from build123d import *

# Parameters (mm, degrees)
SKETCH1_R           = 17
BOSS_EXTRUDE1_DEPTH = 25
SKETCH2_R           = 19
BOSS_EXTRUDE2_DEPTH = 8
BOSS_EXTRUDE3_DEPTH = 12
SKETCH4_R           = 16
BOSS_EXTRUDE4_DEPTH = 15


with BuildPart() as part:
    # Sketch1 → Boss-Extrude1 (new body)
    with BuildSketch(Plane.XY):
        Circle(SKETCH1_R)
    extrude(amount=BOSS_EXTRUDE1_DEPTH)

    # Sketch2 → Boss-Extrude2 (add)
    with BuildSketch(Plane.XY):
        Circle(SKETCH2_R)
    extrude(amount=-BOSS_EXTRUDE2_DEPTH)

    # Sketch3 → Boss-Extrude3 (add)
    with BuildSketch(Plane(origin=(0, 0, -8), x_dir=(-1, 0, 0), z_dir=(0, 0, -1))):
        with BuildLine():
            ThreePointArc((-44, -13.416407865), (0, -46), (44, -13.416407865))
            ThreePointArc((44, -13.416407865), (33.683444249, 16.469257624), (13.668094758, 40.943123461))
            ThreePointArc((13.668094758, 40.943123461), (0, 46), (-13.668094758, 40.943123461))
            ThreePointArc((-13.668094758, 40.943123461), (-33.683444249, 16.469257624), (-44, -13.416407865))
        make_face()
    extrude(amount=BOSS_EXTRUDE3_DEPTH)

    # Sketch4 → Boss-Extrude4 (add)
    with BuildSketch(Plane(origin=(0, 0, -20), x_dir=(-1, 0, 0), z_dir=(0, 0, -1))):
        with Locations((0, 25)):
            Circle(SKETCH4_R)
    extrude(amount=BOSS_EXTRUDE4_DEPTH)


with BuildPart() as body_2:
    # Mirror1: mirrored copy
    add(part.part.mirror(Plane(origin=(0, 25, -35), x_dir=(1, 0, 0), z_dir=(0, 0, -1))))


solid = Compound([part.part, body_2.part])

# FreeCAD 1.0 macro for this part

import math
import FreeCAD as App
import Part
import Sketcher
Q = App.Units.Quantity

doc = App.newDocument("Part")
params = doc.addObject("Spreadsheet::Sheet", "Params")
for row, (alias, value) in enumerate([
    ("sketch1_diameter", "34 mm"),
    ("pad1_length", "25 mm"),
    ("sketch2_diameter", "38 mm"),
    ("pad2_length", "8 mm"),
    ("sketch3_radius", "46 mm"),
    ("sketch3_radius2", "90 mm"),
    ("sketch3_radius3", "21 mm"),
    ("pad3_length", "12 mm"),
    ("sketch4_diameter", "32 mm"),
    ("pad4_length", "15 mm"),
], start=1):
    params.set(f"A{row}", alias)
    params.set(f"B{row}", "=" + value)
    params.setAlias(f"B{row}", alias)

body = doc.addObject("PartDesign::Body", "Body")

sketch1 = body.newObject("Sketcher::SketchObject", "Sketch")
sketch1.AttachmentSupport = (doc.getObject("XY_Plane"), [""])
sketch1.MapMode = "FlatFace"
sketch1.addGeometry(Part.Circle(App.Vector(0, 0, 0), App.Vector(0, 0, 1), 17), False)
sketch1.addConstraint(Sketcher.Constraint("Coincident", 0, 3, -1, 1))
sketch1.addConstraint(Sketcher.Constraint("Diameter", 0, Q("34 mm")))
sketch1.setExpression("Constraints[1]", "Params.sketch1_diameter")
pad1 = body.newObject("PartDesign::Pad", "Pad")
pad1.Profile = sketch1
pad1.setExpression("Length", "Params.pad1_length")

sketch2 = body.newObject("Sketcher::SketchObject", "Sketch001")
sketch2.AttachmentSupport = (doc.getObject("XY_Plane"), [""])
sketch2.MapMode = "FlatFace"
sketch2.addGeometry(Part.Circle(App.Vector(0, 0, 0), App.Vector(0, 0, 1), 19), False)
sketch2.addConstraint(Sketcher.Constraint("Coincident", 0, 3, -1, 1))
sketch2.addConstraint(Sketcher.Constraint("Diameter", 0, Q("38 mm")))
sketch2.setExpression("Constraints[1]", "Params.sketch2_diameter")
pad2 = body.newObject("PartDesign::Pad", "Pad001")
pad2.Profile = sketch2
pad2.setExpression("Length", "Params.pad2_length")
pad2.Reversed = True

sketch3 = body.newObject("Sketcher::SketchObject", "Sketch002")
sketch3.AttachmentSupport = (doc.getObject("XY_Plane"), [""])
sketch3.MapMode = "FlatFace"
sketch3.AttachmentOffset = App.Placement(App.Vector(0, 0, -8), App.Rotation())
sketch3.addGeometry(Part.ArcOfCircle(Part.Circle(App.Vector(0, 0, 0), App.Vector(0, 0, 1), 46), math.radians(-163), math.radians(-17)), False)
sketch3.addGeometry(Part.ArcOfCircle(Part.Circle(App.Vector(45, -27, 0), App.Vector(0, 0, 1), 90), math.radians(131), math.radians(171)), False)
sketch3.addGeometry(Part.ArcOfCircle(Part.Circle(App.Vector(0, 25, 0), App.Vector(0, 0, 1), 21), math.radians(49), math.radians(131)), False)
sketch3.addGeometry(Part.ArcOfCircle(Part.Circle(App.Vector(-45, -27, 0), App.Vector(0, 0, 1), 90), math.radians(9), math.radians(49)), False)
sketch3.addConstraint(Sketcher.Constraint("Coincident", 0, 1, 1, 2))
sketch3.addConstraint(Sketcher.Constraint("Tangent", 1, 1, 2, 2))
sketch3.addConstraint(Sketcher.Constraint("Tangent", 2, 1, 3, 2))
sketch3.addConstraint(Sketcher.Constraint("Coincident", 3, 1, 0, 2))
sketch3.addConstraint(Sketcher.Constraint("Coincident", 0, 3, -1, 1))
sketch3.addConstraint(Sketcher.Constraint("Equal", 1, 3))
sketch3.addConstraint(Sketcher.Constraint("Symmetric", 1, 3, 3, 3, -2))
sketch3.addConstraint(Sketcher.Constraint("Radius", 0, Q("46 mm")))
sketch3.addConstraint(Sketcher.Constraint("Radius", 1, Q("90 mm")))
sketch3.addConstraint(Sketcher.Constraint("Radius", 2, Q("21 mm")))
sketch3.addConstraint(Sketcher.Constraint("DistanceY", -1, 1, 2, 3, Q("25 mm")))
sketch3.addConstraint(Sketcher.Constraint("DistanceX", 0, 1, -1, 1, Q("44 mm")))
sketch3.setExpression("Constraints[7]", "Params.sketch3_radius")
sketch3.setExpression("Constraints[8]", "Params.sketch3_radius2")
sketch3.setExpression("Constraints[9]", "Params.sketch3_radius3")
pad3 = body.newObject("PartDesign::Pad", "Pad002")
pad3.Profile = sketch3
pad3.setExpression("Length", "Params.pad3_length")
pad3.Reversed = True

sketch4 = body.newObject("Sketcher::SketchObject", "Sketch003")
sketch4.AttachmentSupport = (doc.getObject("XY_Plane"), [""])
sketch4.MapMode = "FlatFace"
sketch4.AttachmentOffset = App.Placement(App.Vector(0, 0, -20), App.Rotation())
sketch4.addGeometry(Part.Circle(App.Vector(0, 25, 0), App.Vector(0, 0, 1), 16), False)
sketch4.addConstraint(Sketcher.Constraint("PointOnObject", 0, 3, -2))
sketch4.addConstraint(Sketcher.Constraint("Diameter", 0, Q("32 mm")))
sketch4.addConstraint(Sketcher.Constraint("DistanceY", -1, 1, 0, 3, Q("25 mm")))
sketch4.setExpression("Constraints[1]", "Params.sketch4_diameter")
pad4 = body.newObject("PartDesign::Pad", "Pad003")
pad4.Profile = sketch4
pad4.setExpression("Length", "Params.pad4_length")
pad4.Reversed = True
body2 = doc.addObject("PartDesign::Body", "Body001")
doc.recompute()

mirroring = doc.addObject("Part::Mirroring", "Mirroring")
mirroring.Source = body
mirroring.Base = App.Vector(0, 25, -35)
mirroring.Normal = App.Vector(0, 0, -1)
body2.BaseFeature = mirroring
doc.recompute()
mirroring.Visibility = False

doc.recompute()
